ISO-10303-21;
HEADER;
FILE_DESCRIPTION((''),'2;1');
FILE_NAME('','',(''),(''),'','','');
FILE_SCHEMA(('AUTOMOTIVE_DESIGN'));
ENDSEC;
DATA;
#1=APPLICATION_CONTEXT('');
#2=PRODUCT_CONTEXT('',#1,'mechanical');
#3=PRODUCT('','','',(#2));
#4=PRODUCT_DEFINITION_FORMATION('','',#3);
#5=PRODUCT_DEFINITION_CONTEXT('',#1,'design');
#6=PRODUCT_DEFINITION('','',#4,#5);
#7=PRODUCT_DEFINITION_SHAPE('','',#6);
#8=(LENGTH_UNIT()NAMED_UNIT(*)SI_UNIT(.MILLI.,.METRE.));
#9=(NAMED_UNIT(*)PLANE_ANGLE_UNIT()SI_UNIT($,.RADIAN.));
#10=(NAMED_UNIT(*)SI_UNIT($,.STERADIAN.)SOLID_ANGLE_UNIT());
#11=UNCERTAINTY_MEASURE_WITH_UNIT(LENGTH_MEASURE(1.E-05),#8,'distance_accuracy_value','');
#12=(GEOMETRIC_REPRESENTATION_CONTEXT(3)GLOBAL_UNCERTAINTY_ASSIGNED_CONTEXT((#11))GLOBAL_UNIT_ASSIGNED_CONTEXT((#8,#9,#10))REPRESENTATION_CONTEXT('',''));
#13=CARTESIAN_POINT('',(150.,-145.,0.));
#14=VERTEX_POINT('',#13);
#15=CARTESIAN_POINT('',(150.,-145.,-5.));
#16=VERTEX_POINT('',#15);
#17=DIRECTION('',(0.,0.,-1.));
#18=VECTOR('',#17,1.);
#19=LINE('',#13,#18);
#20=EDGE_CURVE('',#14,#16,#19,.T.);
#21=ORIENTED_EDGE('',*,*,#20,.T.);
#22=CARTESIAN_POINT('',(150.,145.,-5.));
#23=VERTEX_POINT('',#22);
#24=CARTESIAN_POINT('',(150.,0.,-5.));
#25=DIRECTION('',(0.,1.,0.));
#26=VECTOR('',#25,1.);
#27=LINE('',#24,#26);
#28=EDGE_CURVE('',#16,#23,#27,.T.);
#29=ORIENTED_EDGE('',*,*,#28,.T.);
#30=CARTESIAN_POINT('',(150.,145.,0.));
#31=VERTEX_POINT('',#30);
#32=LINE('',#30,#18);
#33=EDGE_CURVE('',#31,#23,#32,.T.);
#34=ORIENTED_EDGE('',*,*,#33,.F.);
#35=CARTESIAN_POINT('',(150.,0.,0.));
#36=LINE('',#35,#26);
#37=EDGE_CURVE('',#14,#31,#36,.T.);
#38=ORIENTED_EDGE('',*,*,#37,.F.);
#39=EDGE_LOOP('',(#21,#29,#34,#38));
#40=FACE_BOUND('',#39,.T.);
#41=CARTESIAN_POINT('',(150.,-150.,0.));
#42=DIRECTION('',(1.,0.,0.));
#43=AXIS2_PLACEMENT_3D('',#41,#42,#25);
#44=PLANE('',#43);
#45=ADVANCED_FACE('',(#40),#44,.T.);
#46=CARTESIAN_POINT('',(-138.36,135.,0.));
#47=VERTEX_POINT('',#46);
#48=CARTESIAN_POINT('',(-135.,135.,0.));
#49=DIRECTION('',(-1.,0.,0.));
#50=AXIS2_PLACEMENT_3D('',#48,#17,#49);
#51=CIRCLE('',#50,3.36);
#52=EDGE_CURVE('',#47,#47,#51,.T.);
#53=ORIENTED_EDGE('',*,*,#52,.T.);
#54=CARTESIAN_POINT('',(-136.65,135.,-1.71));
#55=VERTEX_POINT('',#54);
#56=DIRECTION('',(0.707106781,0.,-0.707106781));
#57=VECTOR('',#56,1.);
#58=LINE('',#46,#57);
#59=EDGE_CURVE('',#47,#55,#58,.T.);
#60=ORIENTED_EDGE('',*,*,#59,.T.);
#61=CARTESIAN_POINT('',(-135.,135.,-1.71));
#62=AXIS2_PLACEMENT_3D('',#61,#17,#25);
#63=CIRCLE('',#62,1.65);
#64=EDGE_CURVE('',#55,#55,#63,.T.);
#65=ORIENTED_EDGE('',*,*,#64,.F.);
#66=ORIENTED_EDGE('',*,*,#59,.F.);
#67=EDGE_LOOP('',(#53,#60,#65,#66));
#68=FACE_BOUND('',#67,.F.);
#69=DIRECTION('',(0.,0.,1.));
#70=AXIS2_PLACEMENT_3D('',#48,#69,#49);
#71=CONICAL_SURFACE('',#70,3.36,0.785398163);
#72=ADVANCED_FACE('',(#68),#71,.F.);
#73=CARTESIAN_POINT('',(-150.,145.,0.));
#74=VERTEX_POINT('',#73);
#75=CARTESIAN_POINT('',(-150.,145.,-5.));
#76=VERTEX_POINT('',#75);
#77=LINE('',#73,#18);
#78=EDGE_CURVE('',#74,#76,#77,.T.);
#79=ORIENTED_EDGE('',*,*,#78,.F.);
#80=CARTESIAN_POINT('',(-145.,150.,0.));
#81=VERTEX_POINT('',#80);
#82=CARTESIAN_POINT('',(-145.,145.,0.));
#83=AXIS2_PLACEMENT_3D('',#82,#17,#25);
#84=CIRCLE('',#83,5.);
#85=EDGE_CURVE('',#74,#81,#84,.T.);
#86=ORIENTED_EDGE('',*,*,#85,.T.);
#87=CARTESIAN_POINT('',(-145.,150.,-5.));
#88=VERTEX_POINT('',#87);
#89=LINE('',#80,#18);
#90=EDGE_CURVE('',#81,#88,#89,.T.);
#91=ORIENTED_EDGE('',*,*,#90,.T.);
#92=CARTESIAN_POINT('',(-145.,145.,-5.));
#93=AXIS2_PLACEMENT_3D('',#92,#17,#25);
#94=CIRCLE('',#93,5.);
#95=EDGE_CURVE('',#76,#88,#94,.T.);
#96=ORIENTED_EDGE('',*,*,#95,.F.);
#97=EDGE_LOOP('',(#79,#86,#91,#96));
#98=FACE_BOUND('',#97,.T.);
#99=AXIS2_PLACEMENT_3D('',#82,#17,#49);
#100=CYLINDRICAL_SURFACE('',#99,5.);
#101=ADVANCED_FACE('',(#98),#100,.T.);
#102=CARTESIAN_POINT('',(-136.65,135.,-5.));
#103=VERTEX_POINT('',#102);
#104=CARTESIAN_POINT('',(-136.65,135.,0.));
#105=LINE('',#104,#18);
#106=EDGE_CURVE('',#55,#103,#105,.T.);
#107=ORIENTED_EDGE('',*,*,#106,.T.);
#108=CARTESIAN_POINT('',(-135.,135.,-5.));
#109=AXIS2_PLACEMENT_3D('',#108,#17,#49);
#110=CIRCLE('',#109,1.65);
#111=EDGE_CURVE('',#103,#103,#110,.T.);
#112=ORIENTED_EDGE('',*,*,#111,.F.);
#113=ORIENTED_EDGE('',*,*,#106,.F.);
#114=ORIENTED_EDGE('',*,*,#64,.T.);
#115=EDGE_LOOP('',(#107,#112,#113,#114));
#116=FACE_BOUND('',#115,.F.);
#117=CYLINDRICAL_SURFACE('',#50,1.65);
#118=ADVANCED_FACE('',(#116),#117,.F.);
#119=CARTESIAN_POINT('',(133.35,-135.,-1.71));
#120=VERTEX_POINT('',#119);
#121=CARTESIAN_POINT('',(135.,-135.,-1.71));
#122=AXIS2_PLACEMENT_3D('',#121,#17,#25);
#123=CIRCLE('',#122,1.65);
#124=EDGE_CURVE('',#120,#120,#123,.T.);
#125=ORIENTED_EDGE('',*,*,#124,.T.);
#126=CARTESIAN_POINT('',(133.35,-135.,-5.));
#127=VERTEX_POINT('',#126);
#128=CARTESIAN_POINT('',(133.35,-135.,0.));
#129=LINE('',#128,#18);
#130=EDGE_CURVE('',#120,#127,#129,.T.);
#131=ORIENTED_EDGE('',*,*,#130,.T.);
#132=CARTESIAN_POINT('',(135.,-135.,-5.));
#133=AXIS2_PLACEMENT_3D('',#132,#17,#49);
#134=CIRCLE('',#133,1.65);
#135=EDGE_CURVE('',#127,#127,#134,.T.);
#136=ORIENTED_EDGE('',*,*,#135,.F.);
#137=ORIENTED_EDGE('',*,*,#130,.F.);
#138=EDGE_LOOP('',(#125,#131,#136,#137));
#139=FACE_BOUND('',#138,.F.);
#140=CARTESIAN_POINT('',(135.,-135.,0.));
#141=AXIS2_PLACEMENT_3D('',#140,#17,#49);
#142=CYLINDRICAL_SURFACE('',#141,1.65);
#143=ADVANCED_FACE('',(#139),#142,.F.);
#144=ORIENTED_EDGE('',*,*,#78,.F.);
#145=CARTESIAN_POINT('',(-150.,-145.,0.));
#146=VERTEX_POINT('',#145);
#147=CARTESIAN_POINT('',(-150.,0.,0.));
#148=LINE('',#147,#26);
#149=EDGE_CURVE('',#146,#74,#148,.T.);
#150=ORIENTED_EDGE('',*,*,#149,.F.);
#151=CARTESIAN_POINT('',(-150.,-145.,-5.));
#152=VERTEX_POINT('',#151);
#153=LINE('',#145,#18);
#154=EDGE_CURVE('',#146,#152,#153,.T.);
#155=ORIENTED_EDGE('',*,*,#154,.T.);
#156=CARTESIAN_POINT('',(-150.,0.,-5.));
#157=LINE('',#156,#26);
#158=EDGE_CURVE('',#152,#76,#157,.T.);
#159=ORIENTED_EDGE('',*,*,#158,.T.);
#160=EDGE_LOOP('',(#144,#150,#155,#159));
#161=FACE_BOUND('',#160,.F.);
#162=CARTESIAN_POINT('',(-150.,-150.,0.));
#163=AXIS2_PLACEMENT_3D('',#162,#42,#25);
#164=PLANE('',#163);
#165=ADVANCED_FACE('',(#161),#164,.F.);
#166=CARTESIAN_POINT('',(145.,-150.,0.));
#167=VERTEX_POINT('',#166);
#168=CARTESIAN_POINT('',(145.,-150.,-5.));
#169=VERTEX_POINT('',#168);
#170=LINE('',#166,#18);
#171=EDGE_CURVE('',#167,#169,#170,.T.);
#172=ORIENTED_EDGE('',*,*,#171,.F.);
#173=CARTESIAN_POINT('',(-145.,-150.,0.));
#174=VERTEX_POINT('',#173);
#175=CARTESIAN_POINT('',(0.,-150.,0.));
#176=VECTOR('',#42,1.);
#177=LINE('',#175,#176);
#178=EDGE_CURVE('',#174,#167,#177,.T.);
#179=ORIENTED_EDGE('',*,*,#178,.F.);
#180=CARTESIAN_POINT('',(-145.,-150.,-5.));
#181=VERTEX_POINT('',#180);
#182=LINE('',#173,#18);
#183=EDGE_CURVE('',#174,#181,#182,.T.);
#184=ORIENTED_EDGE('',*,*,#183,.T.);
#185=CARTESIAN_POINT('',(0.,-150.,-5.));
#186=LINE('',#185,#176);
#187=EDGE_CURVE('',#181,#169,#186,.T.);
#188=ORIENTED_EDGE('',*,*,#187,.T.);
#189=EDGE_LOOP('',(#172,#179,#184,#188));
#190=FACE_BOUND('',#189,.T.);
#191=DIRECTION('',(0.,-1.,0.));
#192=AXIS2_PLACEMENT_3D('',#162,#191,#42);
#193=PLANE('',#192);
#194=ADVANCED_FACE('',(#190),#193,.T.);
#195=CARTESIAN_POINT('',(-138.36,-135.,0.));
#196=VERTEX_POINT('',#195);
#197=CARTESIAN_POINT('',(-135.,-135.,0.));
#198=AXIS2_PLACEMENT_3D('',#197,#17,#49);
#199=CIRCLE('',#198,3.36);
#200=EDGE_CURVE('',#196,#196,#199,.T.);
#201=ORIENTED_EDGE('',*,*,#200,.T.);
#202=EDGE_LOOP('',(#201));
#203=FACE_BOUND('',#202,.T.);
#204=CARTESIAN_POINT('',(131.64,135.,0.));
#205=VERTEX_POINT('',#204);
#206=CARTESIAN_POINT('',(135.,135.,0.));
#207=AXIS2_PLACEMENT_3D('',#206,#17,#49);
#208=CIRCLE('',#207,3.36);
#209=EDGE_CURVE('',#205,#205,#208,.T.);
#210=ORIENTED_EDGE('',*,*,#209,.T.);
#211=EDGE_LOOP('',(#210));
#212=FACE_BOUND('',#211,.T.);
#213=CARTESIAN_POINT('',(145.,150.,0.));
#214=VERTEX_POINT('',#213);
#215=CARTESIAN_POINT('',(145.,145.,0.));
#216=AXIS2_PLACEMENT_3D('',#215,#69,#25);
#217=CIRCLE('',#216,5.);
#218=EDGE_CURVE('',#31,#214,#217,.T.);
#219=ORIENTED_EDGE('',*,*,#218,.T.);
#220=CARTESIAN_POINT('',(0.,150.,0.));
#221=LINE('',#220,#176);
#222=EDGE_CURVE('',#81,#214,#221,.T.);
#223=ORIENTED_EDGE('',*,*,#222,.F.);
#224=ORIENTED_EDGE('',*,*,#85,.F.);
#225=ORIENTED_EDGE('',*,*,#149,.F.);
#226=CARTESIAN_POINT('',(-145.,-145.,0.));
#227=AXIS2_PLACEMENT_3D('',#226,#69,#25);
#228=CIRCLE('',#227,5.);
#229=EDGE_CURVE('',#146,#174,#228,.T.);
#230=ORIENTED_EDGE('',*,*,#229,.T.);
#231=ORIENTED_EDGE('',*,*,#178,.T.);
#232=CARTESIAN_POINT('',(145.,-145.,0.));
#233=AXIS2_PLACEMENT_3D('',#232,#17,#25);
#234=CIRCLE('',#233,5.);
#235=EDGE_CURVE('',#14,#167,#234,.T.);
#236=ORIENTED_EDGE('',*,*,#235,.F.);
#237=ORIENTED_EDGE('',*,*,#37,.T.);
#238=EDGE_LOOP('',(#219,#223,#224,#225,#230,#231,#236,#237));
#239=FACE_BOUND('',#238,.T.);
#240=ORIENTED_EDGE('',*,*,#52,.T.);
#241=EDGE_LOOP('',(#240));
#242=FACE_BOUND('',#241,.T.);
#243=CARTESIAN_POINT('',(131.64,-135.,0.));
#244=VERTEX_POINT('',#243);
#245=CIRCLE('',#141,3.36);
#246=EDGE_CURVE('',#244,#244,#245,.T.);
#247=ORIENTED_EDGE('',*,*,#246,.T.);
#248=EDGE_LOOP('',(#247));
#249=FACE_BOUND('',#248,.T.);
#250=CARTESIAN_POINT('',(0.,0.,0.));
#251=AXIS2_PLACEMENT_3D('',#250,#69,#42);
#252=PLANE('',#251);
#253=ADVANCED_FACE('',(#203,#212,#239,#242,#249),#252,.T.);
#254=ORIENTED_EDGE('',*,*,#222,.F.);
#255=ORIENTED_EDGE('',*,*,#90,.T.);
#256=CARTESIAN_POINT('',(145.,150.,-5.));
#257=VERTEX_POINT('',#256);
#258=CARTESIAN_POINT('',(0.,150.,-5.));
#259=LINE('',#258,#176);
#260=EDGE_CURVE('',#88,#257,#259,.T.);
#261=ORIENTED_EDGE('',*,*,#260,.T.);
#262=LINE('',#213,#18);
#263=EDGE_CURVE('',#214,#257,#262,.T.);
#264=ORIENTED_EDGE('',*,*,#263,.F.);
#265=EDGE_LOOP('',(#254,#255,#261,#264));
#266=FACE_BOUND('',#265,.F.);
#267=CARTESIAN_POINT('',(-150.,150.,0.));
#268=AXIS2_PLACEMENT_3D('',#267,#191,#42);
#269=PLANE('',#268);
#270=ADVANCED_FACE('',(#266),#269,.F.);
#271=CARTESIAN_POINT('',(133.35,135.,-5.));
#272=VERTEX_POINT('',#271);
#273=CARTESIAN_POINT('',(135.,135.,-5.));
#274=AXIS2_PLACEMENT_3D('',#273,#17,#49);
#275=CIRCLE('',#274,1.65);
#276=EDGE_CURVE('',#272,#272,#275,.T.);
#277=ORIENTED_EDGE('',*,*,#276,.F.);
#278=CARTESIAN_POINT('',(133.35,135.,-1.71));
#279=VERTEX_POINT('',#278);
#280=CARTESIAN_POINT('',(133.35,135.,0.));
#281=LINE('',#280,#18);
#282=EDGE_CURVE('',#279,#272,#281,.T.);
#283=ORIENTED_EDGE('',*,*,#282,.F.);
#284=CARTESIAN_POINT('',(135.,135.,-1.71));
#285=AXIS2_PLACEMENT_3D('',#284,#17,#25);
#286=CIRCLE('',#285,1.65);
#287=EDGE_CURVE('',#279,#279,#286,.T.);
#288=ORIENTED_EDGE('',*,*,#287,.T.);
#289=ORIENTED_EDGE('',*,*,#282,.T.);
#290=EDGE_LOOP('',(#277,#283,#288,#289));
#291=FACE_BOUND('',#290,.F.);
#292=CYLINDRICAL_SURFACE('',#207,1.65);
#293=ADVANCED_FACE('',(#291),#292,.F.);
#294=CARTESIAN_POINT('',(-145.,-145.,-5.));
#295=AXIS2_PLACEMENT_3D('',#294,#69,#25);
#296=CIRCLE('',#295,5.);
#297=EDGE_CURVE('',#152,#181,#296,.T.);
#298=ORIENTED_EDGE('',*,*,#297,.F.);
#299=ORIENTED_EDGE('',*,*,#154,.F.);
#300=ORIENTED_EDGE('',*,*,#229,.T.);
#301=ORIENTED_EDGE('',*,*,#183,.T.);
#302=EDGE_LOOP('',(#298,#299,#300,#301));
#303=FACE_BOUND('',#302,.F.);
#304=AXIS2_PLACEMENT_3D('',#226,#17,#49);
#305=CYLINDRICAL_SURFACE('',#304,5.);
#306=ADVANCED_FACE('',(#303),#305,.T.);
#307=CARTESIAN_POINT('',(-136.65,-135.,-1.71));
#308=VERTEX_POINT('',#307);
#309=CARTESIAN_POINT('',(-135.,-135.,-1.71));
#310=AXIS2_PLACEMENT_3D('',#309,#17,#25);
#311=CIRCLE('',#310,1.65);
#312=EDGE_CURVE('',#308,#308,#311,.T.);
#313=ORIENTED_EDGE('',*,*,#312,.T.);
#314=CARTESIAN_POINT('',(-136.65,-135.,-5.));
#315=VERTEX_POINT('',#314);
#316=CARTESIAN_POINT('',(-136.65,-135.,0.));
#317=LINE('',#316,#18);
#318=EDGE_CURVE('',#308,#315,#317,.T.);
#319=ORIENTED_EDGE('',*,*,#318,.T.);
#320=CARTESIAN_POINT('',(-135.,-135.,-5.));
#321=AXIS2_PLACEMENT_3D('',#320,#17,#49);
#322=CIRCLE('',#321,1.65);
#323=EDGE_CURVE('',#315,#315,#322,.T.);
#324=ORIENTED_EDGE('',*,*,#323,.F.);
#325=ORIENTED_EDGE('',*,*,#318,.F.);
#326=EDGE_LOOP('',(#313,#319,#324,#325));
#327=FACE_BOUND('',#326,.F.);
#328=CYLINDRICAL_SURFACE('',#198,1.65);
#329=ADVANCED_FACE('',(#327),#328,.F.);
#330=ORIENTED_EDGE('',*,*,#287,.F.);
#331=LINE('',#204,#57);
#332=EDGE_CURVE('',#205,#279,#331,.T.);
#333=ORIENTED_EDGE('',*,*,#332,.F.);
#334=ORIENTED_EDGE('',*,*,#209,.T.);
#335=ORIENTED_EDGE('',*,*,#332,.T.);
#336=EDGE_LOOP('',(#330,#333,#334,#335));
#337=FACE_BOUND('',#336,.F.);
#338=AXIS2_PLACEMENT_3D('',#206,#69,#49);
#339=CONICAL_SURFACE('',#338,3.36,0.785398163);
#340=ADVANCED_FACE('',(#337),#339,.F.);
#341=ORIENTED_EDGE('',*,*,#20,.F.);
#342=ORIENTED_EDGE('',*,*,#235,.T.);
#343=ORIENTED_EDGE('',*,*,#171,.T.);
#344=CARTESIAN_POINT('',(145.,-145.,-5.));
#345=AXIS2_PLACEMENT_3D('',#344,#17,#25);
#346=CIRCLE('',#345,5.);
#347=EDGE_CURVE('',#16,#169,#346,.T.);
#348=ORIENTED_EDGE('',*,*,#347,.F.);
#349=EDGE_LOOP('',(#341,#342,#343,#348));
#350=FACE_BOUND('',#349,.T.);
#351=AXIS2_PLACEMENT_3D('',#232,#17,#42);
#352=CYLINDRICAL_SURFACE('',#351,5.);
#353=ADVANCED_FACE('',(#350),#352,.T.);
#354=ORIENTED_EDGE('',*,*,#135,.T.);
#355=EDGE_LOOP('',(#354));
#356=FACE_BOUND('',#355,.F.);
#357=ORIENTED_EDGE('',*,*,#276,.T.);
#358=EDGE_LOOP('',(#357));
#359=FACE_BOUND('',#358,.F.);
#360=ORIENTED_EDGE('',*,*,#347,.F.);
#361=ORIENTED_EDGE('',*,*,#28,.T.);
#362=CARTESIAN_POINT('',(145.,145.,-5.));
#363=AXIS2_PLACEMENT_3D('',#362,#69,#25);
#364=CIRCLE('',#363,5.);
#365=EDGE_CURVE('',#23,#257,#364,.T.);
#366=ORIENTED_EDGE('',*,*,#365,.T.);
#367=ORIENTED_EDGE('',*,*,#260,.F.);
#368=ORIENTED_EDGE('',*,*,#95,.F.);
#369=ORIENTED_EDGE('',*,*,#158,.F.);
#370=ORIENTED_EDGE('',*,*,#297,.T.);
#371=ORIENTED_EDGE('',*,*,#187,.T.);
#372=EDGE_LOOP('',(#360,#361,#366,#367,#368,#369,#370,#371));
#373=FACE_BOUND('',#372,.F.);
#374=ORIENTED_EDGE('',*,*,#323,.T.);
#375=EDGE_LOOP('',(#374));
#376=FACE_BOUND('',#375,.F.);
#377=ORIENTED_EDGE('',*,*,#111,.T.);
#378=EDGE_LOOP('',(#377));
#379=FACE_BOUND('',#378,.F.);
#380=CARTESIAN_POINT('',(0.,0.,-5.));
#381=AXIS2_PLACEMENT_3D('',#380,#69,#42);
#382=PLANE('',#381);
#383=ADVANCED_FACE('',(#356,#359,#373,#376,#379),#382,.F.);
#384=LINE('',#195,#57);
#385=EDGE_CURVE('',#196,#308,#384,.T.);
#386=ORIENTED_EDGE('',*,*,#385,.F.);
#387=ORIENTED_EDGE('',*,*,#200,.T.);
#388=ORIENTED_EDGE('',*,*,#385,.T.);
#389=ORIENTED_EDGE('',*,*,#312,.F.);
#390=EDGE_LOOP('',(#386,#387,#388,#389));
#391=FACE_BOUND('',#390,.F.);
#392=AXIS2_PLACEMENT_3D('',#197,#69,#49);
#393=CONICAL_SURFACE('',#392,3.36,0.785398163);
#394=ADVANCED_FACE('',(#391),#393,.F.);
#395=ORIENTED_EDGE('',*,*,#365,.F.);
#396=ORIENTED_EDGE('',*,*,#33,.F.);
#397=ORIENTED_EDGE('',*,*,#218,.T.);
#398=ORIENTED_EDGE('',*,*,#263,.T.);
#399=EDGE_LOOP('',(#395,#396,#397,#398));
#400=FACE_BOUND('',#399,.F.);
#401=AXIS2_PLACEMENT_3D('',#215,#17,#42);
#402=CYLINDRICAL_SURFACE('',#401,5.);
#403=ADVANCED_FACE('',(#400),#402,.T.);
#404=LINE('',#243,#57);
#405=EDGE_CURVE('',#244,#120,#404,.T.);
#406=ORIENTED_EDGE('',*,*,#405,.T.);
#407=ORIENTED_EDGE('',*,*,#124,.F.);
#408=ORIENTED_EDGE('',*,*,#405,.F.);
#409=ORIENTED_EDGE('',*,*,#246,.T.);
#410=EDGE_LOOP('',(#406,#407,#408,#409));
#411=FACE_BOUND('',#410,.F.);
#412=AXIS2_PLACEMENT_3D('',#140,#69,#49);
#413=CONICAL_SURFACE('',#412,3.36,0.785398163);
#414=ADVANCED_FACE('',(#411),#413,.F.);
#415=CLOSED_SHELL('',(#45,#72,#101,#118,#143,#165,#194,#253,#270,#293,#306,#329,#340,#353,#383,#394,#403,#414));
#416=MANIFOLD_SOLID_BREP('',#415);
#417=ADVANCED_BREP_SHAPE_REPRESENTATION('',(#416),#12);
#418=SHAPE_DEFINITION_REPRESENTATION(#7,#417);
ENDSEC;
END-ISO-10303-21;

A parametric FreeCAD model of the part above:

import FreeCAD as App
import Part
import Sketcher
Q = App.Units.Quantity


def edges_at(feature, points):
    """Names of the edges that pass closest to the given points."""
    edges = feature.Shape.Edges
    near = lambda p: min(range(len(edges)), key=lambda i: edges[i].distToShape(Part.Vertex(*p))[0])
    return sorted({f"Edge{near(p) + 1}" for p in points})

doc = App.newDocument("Part")
body = doc.addObject("PartDesign::Body", "Body")

sketch1 = doc.addObject("Sketcher::SketchObject", "Sketch")
body.addObject(sketch1)
sketch1.AttachmentSupport = (doc.XY_Plane, [""])
sketch1.MapMode = "FlatFace"
sketch1.addGeometry([
    Part.LineSegment(App.Vector(-150, 150, 0), App.Vector(-150, -150, 0)),
    Part.LineSegment(App.Vector(-150, -150, 0), App.Vector(150, -150, 0)),
    Part.LineSegment(App.Vector(150, -150, 0), App.Vector(150, 150, 0)),
    Part.LineSegment(App.Vector(150, 150, 0), App.Vector(-150, 150, 0)),
], False)
sketch1.addConstraint([
    Sketcher.Constraint("Coincident", 0, 2, 1, 1),
    Sketcher.Constraint("Coincident", 1, 2, 2, 1),
    Sketcher.Constraint("Coincident", 2, 2, 3, 1),
    Sketcher.Constraint("Coincident", 3, 2, 0, 1),
    Sketcher.Constraint("Vertical", 0),
    Sketcher.Constraint("Horizontal", 1),
    Sketcher.Constraint("Vertical", 2),
    Sketcher.Constraint("Horizontal", 3),
    Sketcher.Constraint("Symmetric", 0, 2, 2, 2, -1, 1),
    Sketcher.Constraint("Equal", 3, 0),
    Sketcher.Constraint("DistanceX", 1, 1, 1, 2, Q("300 mm")),
])
pad1 = doc.addObject("PartDesign::Pad", "Pad")
body.addObject(pad1)
pad1.Profile = sketch1
pad1.Length = 5
pad1.Reversed = True

sketch2 = doc.addObject("Sketcher::SketchObject", "Sketch001")
body.addObject(sketch2)
sketch2.AttachmentSupport = (doc.XY_Plane, [""])
sketch2.MapMode = "FlatFace"
sketch2.addGeometry([
    Part.Circle(App.Vector(-135, 135, 0), App.Vector(0, 0, 1), 1.6),
    Part.Circle(App.Vector(-135, -135, 0), App.Vector(0, 0, 1), 1.6),
    Part.Circle(App.Vector(135, -135, 0), App.Vector(0, 0, 1), 1.6),
    Part.Circle(App.Vector(135, 135, 0), App.Vector(0, 0, 1), 1.6),
], False)
sketch2.addConstraint([
    Sketcher.Constraint("Equal", 0, 1),
    Sketcher.Constraint("Equal", 1, 2),
    Sketcher.Constraint("Equal", 2, 3),
    Sketcher.Constraint("Symmetric", 0, 3, 2, 3, -1, 1),
    Sketcher.Constraint("Symmetric", 1, 3, 3, 3, -1, 1),
    Sketcher.Constraint("Symmetric", 1, 3, 2, 3, -2),
    Sketcher.Constraint("Diameter", 0, Q("3.3 mm")),
    Sketcher.Constraint("DistanceX", 0, 3, -1, 1, Q("135 mm")),
    Sketcher.Constraint("DistanceY", -1, 1, 0, 3, Q("135 mm")),
])
doc.recompute()
hole = doc.addObject("PartDesign::Hole", "Hole")
body.addObject(hole)
hole.Profile = sketch2
hole.ThreadType = "None"
hole.Diameter = 3.3
hole.DepthType = "ThroughAll"
hole.HoleCutType = "Countersink"
hole.HoleCutDiameter = 6.72
hole.HoleCutCountersinkAngle = 90
doc.recompute()

fillet = doc.addObject("PartDesign::Fillet", "Fillet")
body.addObject(fillet)
fillet.Base = (hole, edges_at(hole, [
    (-150, 150, -2.5),
    (150, 150, -2.5),
    (150, -150, -2.5),
    (-150, -150, -2.5),
]))
fillet.Radius = 5

doc.recompute()
